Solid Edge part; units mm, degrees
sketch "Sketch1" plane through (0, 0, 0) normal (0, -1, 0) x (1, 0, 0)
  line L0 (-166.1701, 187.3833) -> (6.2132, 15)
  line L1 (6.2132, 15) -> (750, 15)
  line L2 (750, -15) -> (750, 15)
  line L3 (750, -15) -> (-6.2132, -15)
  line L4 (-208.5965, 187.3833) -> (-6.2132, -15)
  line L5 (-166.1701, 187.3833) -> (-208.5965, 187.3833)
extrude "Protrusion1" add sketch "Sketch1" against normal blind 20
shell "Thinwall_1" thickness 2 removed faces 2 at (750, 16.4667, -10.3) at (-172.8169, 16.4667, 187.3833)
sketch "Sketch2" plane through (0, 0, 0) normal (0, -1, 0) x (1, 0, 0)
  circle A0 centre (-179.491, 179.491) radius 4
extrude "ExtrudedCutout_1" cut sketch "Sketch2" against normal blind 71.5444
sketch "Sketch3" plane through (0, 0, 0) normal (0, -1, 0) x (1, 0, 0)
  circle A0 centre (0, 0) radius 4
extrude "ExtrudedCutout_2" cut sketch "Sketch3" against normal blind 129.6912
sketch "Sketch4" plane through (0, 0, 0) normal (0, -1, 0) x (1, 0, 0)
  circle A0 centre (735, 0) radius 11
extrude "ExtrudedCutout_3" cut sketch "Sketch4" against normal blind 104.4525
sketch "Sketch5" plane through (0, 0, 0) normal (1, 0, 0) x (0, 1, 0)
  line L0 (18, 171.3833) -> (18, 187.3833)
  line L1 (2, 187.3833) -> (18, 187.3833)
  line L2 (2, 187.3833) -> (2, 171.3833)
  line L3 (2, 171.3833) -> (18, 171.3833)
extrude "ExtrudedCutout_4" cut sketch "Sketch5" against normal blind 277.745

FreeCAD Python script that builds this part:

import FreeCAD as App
import Part
import Sketcher
Q = App.Units.Quantity


def faces_at(feature, points):
    """Names of the faces that lie closest to the given points."""
    faces = feature.Shape.Faces
    near = lambda p: min(range(len(faces)), key=lambda i: faces[i].distToShape(Part.Vertex(*p))[0])
    return sorted({f"Face{near(p) + 1}" for p in points})

doc = App.newDocument("Part")
body = doc.addObject("PartDesign::Body", "Body")

# Sketch on XZ plane
sketch1 = doc.addObject("Sketcher::SketchObject", "Sketch")
body.addObject(sketch1)
sketch1.AttachmentSupport = (doc.XZ_Plane, [""])
sketch1.MapMode = "FlatFace"
sketch1.addGeometry([
    Part.LineSegment(App.Vector(6, 15, 0), App.Vector(-166, 187, 0)),  # 0
    Part.LineSegment(App.Vector(-166, 187, 0), App.Vector(-209, 187, 0)),  # 1
    Part.LineSegment(App.Vector(-209, 187, 0), App.Vector(-6, -15, 0)),  # 2
    Part.LineSegment(App.Vector(-6, -15, 0), App.Vector(750, -15, 0)),  # 3
    Part.LineSegment(App.Vector(750, -15, 0), App.Vector(750, 15, 0)),  # 4
    Part.LineSegment(App.Vector(750, 15, 0), App.Vector(6, 15, 0)),  # 5
], False)
sketch1.addConstraint([
    Sketcher.Constraint("Coincident", 0, 2, 1, 1),
    Sketcher.Constraint("Coincident", 1, 2, 2, 1),
    Sketcher.Constraint("Coincident", 2, 2, 3, 1),
    Sketcher.Constraint("Coincident", 3, 2, 4, 1),
    Sketcher.Constraint("Coincident", 4, 2, 5, 1),
    Sketcher.Constraint("Coincident", 5, 2, 0, 1),
    Sketcher.Constraint("Horizontal", 1),
    Sketcher.Constraint("Horizontal", 3),
    Sketcher.Constraint("Vertical", 4),
    Sketcher.Constraint("Horizontal", 5),
    Sketcher.Constraint("Symmetric", 2, 2, 5, 2, -1, 1),
    Sketcher.Constraint("Parallel", 0, 2),
    Sketcher.Constraint("DistanceY", 4, 1, 4, 2, 30.0),
    Sketcher.Constraint("Angle", 0, Q("135 deg")),
    Sketcher.Constraint("DistanceX", -1, 1, 3, 2, 750.0),
    Sketcher.Constraint("DistanceX", 0, 2, -1, 1, 166.17),
    Sketcher.Constraint("DistanceX", 1, 2, 1, 1, 42.4264),
])
pad1 = doc.addObject("PartDesign::Pad", "Pad")
body.addObject(pad1)
pad1.Profile = sketch1
pad1.Length = 20
pad1.Reversed = True
doc.recompute()

thickness = doc.addObject("PartDesign::Thickness", "Thickness")
body.addObject(thickness)
thickness.Base = (pad1, faces_at(pad1, [(750, 16.467, -10.3), (-172.817, 16.467, 187.383)]))
thickness.Value = 2
thickness.Reversed = True
thickness.Join = "Intersection"

# Sketch on XZ plane
sketch2 = doc.addObject("Sketcher::SketchObject", "Sketch001")
body.addObject(sketch2)
sketch2.AttachmentSupport = (doc.XZ_Plane, [""])
sketch2.MapMode = "FlatFace"
sketch2.addGeometry(Part.Circle(App.Vector(-179.5, 179.5, 0), App.Vector(0, 0, 1), 4), False)
sketch2.addConstraint([
    Sketcher.Constraint("Diameter", 0, 8.0),
    Sketcher.Constraint("DistanceX", 0, 3, -1, 1, 179.491),
    Sketcher.Constraint("DistanceY", -1, 1, 0, 3, 179.491),
])
pocket1 = doc.addObject("PartDesign::Pocket", "Pocket")
body.addObject(pocket1)
pocket1.Profile = sketch2
pocket1.Length = 71.5444

# Sketch on XZ plane
sketch3 = doc.addObject("Sketcher::SketchObject", "Sketch002")
body.addObject(sketch3)
sketch3.AttachmentSupport = (doc.XZ_Plane, [""])
sketch3.MapMode = "FlatFace"
sketch3.addGeometry(Part.Circle(App.Vector(0, 0, 0), App.Vector(0, 0, 1), 4), False)
sketch3.addConstraint([
    Sketcher.Constraint("Coincident", 0, 3, -1, 1),
    Sketcher.Constraint("Diameter", 0, 8.0),
])
pocket2 = doc.addObject("PartDesign::Pocket", "Pocket001")
body.addObject(pocket2)
pocket2.Profile = sketch3
pocket2.Length = 129.6912

# Sketch on XZ plane
sketch4 = doc.addObject("Sketcher::SketchObject", "Sketch003")
body.addObject(sketch4)
sketch4.AttachmentSupport = (doc.XZ_Plane, [""])
sketch4.MapMode = "FlatFace"
sketch4.addGeometry(Part.Circle(App.Vector(735, 0, 0), App.Vector(0, 0, 1), 11), False)
sketch4.addConstraint([
    Sketcher.Constraint("PointOnObject", 0, 3, -1),
    Sketcher.Constraint("Diameter", 0, 22.0),
    Sketcher.Constraint("DistanceX", -1, 1, 0, 3, 735.0),
])
pocket3 = doc.addObject("PartDesign::Pocket", "Pocket002")
body.addObject(pocket3)
pocket3.Profile = sketch4
pocket3.Length = 104.4525

# Sketch on YZ plane
sketch5 = doc.addObject("Sketcher::SketchObject", "Sketch004")
body.addObject(sketch5)
sketch5.AttachmentSupport = (doc.YZ_Plane, [""])
sketch5.MapMode = "FlatFace"
sketch5.addGeometry([
    Part.LineSegment(App.Vector(2, 171, 0), App.Vector(18, 171, 0)),
    Part.LineSegment(App.Vector(18, 171, 0), App.Vector(18, 187, 0)),
    Part.LineSegment(App.Vector(18, 187, 0), App.Vector(2, 187, 0)),
    Part.LineSegment(App.Vector(2, 187, 0), App.Vector(2, 171, 0)),
], False)
sketch5.addConstraint([
    Sketcher.Constraint("Coincident", 0, 2, 1, 1),
    Sketcher.Constraint("Coincident", 1, 2, 2, 1),
    Sketcher.Constraint("Coincident", 2, 2, 3, 1),
    Sketcher.Constraint("Coincident", 3, 2, 0, 1),
    Sketcher.Constraint("Horizontal", 0),
    Sketcher.Constraint("Vertical", 1),
    Sketcher.Constraint("Horizontal", 2),
    Sketcher.Constraint("Vertical", 3),
    Sketcher.Constraint("Equal", 2, 1),
    Sketcher.Constraint("DistanceX", 0, 1, 0, 2, 16.0),
    Sketcher.Constraint("DistanceX", -1, 1, 0, 2, 18.0),
    Sketcher.Constraint("DistanceY", -1, 1, 0, 2, 171.3833),
])
pocket4 = doc.addObject("PartDesign::Pocket", "Pocket003")
body.addObject(pocket4)
pocket4.Profile = sketch5
pocket4.Length = 277.745

doc.recompute()
